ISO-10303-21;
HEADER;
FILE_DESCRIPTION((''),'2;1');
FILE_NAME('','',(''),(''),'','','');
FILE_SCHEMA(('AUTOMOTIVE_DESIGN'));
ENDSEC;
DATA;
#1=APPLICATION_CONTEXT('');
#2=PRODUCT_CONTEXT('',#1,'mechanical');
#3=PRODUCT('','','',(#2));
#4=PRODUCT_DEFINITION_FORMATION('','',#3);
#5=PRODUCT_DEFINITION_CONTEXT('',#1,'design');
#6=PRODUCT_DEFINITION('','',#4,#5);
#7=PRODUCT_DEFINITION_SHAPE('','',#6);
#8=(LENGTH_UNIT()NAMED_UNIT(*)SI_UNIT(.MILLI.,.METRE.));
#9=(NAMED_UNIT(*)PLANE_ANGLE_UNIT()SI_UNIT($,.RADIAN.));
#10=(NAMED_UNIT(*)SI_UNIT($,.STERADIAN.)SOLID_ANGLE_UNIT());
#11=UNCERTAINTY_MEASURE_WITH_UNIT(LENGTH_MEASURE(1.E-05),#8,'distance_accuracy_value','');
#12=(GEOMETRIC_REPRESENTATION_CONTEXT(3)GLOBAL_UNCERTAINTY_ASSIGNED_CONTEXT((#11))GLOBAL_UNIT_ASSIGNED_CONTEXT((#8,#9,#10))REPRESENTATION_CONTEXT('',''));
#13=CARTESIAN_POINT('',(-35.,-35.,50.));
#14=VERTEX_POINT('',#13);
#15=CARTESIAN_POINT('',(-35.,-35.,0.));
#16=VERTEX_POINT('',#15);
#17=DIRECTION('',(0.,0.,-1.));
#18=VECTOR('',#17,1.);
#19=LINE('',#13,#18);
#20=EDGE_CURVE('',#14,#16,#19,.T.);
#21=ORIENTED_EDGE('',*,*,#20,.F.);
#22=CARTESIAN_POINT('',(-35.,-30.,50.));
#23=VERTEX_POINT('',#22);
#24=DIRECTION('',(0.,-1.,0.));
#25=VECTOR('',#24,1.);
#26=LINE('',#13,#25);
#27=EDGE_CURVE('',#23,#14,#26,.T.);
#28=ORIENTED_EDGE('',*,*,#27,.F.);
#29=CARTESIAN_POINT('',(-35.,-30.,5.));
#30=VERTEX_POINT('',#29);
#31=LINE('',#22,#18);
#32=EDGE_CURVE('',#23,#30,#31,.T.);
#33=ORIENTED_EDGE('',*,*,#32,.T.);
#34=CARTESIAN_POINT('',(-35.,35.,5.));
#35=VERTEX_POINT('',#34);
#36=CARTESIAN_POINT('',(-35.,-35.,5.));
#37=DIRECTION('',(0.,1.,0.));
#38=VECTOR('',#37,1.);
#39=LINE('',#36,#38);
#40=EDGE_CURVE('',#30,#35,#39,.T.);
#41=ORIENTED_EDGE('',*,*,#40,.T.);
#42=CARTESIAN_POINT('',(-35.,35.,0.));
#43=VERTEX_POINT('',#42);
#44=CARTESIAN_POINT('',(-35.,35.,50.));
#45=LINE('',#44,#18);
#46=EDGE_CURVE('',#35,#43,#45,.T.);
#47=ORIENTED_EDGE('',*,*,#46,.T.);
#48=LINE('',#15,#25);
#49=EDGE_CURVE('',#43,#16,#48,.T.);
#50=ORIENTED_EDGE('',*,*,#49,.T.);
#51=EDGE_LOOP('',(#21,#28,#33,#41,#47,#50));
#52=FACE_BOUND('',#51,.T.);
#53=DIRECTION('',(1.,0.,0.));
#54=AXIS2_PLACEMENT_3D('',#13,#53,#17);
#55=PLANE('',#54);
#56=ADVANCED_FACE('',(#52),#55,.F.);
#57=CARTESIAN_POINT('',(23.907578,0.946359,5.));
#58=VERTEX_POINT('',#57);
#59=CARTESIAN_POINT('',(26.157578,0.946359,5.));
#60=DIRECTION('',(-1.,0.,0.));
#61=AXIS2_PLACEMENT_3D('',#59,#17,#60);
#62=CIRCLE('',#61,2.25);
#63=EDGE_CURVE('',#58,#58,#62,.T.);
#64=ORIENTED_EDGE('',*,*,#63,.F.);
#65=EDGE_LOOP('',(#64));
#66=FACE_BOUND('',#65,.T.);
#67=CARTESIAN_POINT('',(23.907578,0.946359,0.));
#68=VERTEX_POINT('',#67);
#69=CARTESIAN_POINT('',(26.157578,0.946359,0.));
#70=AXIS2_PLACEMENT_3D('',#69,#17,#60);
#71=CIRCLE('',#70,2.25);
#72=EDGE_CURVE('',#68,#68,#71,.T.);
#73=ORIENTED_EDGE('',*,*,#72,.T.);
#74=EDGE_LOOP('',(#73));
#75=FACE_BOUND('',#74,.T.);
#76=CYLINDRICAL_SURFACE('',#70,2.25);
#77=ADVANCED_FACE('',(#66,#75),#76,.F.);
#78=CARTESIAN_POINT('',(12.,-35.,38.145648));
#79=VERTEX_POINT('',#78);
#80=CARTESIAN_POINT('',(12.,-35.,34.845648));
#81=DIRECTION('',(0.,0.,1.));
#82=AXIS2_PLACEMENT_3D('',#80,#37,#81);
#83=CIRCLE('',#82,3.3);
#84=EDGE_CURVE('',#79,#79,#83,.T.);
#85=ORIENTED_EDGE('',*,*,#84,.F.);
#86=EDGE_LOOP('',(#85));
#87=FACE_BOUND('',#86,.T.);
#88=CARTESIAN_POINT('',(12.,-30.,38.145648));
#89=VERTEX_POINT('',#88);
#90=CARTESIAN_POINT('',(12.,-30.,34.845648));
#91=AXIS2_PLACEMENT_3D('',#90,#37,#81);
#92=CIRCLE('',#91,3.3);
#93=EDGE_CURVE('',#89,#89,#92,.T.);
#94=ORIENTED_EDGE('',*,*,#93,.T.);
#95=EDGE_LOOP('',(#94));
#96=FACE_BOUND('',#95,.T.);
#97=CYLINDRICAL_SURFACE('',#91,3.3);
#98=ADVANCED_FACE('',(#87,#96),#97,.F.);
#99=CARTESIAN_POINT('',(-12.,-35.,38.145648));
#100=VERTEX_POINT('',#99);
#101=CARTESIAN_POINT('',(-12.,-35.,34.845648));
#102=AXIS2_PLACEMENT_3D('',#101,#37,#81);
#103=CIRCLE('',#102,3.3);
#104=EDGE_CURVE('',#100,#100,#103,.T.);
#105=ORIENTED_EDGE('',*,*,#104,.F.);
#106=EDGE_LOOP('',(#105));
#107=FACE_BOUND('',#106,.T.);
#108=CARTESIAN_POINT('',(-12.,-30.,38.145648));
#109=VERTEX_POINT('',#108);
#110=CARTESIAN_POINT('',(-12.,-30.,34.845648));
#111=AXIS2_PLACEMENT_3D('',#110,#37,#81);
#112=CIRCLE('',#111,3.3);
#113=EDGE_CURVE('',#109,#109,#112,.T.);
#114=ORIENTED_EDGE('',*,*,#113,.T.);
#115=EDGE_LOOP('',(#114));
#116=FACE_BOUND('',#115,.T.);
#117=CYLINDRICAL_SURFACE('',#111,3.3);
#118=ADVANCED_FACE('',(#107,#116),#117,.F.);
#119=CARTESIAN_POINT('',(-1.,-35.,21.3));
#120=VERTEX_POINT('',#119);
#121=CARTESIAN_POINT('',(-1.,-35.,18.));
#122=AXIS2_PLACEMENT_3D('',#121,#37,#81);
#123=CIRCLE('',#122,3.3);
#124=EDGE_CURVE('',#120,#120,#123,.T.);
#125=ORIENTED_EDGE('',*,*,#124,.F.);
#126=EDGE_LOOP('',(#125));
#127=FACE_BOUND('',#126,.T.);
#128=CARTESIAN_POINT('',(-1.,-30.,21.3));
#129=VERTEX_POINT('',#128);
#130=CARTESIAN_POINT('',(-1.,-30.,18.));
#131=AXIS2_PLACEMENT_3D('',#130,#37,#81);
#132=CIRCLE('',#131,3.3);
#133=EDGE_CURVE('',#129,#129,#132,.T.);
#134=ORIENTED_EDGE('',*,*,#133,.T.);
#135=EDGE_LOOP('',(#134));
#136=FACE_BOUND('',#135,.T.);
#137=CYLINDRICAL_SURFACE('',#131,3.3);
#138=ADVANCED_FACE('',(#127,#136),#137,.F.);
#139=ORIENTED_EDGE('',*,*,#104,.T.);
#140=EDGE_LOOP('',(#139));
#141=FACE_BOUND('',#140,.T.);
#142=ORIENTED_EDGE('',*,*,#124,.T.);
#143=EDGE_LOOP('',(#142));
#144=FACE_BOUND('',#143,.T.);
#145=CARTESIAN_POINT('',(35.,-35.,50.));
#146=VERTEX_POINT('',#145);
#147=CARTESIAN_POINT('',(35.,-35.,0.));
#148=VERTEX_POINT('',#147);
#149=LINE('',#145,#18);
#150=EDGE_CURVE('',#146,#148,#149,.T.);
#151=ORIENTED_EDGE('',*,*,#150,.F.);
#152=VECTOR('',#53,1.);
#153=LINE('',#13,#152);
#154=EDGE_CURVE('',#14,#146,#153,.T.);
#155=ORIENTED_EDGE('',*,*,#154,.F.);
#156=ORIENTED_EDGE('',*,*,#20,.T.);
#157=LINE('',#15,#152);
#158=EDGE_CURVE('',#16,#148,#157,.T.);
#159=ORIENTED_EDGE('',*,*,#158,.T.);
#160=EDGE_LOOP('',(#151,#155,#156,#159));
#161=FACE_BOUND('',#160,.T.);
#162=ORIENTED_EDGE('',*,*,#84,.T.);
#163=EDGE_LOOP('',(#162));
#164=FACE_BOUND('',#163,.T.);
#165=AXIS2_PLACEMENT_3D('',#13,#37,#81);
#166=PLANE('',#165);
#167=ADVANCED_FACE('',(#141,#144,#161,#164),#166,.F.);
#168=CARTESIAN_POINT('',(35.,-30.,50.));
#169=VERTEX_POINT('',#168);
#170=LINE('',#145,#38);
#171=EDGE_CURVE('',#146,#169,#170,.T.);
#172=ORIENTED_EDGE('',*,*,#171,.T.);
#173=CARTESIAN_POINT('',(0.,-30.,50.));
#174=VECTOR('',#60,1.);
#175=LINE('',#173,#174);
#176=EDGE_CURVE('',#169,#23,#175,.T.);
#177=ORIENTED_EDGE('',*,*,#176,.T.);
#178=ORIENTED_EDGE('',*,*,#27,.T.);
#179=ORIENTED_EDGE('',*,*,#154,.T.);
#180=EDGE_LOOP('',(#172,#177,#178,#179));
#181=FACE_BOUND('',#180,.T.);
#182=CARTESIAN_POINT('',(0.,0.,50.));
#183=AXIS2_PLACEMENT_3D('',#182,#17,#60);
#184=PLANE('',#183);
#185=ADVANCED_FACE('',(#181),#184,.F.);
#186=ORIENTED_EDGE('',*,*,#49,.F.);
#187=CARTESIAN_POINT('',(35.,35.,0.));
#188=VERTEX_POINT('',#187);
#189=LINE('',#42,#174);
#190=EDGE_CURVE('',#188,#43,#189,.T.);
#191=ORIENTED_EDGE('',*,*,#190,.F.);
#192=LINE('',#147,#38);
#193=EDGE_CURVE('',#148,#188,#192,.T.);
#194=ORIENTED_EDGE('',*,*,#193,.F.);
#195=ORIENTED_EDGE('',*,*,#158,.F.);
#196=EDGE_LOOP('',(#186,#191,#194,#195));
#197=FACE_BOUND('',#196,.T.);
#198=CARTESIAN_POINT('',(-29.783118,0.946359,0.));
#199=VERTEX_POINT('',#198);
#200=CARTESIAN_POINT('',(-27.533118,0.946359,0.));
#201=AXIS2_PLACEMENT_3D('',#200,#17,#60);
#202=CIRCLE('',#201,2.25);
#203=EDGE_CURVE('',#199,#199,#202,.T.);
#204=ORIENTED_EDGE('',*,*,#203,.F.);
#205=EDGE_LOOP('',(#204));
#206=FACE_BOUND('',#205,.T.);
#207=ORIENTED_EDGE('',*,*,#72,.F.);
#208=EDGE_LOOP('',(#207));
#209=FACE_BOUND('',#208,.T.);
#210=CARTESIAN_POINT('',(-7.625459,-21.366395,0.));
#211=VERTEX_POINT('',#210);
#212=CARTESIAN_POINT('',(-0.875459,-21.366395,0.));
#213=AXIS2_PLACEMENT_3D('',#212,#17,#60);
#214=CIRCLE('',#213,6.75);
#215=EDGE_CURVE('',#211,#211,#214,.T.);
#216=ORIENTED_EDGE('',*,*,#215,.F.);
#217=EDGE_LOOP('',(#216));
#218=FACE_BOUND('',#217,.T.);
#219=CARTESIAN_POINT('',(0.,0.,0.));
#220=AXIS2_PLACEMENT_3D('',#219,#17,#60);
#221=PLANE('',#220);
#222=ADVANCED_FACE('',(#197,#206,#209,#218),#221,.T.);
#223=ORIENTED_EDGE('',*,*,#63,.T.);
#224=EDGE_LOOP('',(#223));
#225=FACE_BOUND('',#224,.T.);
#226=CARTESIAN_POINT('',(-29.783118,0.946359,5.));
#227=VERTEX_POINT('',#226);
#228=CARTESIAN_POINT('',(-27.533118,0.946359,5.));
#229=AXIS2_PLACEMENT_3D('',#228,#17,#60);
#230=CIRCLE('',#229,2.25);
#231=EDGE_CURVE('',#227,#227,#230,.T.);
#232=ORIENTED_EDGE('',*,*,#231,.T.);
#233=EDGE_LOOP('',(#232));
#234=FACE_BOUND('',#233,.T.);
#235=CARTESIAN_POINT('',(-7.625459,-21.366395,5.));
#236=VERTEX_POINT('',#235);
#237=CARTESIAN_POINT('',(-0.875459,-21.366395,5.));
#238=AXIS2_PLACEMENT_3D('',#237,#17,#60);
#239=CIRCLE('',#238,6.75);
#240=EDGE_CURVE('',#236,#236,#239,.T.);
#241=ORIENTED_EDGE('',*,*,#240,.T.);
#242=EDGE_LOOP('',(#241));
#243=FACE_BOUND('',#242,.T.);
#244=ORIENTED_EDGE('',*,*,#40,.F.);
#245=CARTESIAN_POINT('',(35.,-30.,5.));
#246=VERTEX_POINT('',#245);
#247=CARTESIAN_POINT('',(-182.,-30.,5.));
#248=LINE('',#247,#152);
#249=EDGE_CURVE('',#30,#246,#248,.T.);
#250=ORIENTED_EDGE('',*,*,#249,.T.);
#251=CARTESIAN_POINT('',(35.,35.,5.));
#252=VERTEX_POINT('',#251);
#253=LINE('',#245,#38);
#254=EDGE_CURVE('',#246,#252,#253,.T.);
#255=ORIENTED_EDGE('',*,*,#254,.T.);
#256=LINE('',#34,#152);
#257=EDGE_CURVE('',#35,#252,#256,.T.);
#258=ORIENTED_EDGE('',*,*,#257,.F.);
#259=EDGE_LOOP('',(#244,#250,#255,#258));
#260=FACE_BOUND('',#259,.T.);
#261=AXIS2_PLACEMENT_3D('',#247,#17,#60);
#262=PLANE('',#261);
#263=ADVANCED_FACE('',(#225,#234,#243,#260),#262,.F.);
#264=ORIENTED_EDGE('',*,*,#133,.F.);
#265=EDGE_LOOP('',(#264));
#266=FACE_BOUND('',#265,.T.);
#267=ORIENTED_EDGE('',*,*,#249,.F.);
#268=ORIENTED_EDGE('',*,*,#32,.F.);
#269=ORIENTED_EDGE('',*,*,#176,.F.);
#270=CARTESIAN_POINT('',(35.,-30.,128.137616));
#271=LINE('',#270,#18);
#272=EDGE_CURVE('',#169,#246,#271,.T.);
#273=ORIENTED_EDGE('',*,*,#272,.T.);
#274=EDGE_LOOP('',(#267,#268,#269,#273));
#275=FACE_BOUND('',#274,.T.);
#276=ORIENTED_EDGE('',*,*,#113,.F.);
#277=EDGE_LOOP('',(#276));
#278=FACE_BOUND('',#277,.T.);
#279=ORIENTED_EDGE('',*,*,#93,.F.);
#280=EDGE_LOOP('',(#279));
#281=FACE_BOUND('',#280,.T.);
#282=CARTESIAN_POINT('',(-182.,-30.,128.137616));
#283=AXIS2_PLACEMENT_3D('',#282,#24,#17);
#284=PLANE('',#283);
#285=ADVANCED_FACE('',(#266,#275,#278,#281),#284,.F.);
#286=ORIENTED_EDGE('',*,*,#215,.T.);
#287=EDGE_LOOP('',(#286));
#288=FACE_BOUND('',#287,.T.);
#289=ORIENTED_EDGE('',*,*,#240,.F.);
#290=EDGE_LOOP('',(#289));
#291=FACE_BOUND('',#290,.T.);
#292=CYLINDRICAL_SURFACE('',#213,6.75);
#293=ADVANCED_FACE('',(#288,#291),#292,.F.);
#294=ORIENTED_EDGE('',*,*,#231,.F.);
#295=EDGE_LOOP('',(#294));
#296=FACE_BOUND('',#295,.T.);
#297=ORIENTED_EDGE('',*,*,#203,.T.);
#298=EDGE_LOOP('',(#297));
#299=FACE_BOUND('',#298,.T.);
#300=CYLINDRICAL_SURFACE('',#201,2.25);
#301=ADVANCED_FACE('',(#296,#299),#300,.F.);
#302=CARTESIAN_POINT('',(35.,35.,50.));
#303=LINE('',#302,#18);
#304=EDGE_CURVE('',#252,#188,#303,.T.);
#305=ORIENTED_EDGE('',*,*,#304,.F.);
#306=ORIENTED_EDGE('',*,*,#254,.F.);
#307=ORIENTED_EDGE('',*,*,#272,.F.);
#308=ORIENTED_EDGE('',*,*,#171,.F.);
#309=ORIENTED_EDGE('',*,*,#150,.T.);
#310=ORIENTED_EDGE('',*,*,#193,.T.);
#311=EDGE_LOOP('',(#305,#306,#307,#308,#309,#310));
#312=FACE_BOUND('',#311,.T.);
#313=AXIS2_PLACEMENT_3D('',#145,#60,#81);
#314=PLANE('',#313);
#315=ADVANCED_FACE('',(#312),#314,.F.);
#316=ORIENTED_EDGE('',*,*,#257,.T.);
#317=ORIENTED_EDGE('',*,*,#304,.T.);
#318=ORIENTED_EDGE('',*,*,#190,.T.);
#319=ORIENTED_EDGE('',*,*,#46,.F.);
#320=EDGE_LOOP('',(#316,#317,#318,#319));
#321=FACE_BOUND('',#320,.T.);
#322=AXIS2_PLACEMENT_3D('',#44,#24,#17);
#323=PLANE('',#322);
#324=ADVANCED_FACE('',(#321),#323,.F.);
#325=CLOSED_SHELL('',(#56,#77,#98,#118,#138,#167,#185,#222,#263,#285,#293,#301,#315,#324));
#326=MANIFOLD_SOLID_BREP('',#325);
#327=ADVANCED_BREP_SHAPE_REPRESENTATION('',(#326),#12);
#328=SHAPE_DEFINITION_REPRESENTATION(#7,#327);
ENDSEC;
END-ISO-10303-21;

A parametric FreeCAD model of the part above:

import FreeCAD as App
import Part
import Sketcher
Q = App.Units.Quantity


def add_polygon(sketch, points):
    """Adds a closed chain of lines whose ends are joined by coincident constraints."""
    first, n = sketch.GeometryCount, len(points)
    for a, b in zip(points, points[1:] + points[:1]):
        sketch.addGeometry(Part.LineSegment(App.Vector(*a, 0), App.Vector(*b, 0)), False)
    for i in range(n):
        sketch.addConstraint(Sketcher.Constraint("Coincident", first + i, 2, first + (i + 1) % n, 1))

doc = App.newDocument("Part")
params = doc.addObject("Spreadsheet::Sheet", "Params")
for row, (alias, value) in enumerate([
    ("sketch1_width", "70 mm"),
    ("pad1_length", "50 mm"),
    ("pocket1_length", "217 mm"),
    ("sketch3_diameter", "4.5 mm"),
    ("hole_diameter", "4.5 mm"),
    ("sketch4_diameter", "13.5 mm"),
    ("hole2_diameter", "13.5 mm"),
    ("sketch5_diameter", "6.6 mm"),
    ("hole3_diameter", "6.6 mm"),
], start=1):
    params.set(f"A{row}", alias)
    params.set(f"B{row}", "=" + value)
    params.setAlias(f"B{row}", alias)

body = doc.addObject("PartDesign::Body", "Body")

# Sketch on XY plane
sketch1 = body.newObject("Sketcher::SketchObject", "Sketch")
sketch1.AttachmentSupport = (doc.getObject("XY_Plane"), [""])
sketch1.MapMode = "FlatFace"
add_polygon(sketch1, [(-35, 35), (-35, -35), (35, -35), (35, 35)])  # lines 0-3
sketch1.addConstraint([
    Sketcher.Constraint("Vertical", 0),
    Sketcher.Constraint("Horizontal", 1),
    Sketcher.Constraint("Vertical", 2),
    Sketcher.Constraint("Horizontal", 3),
    Sketcher.Constraint("Symmetric", 0, 2, 2, 2, -1, 1),
    Sketcher.Constraint("Equal", 3, 0),
    Sketcher.Constraint("DistanceX", 1, 1, 1, 2, Q("70 mm")),
])
sketch1.setExpression("Constraints[10]", "Params.sketch1_width")
pad1 = body.newObject("PartDesign::Pad", "Pad")
pad1.Profile = sketch1
pad1.setExpression("Length", "Params.pad1_length")

# Sketch on YZ plane
sketch2 = body.newObject("Sketcher::SketchObject", "Sketch001")
sketch2.AttachmentSupport = (doc.getObject("YZ_Plane"), [""])
sketch2.MapMode = "FlatFace"
sketch2.AttachmentOffset = App.Placement(App.Vector(0, 0, 35), App.Rotation())
add_polygon(sketch2, [(57, 128), (-30, 128), (-30, 5), (57, 5)])  # lines 0-3
sketch2.addConstraint([
    Sketcher.Constraint("Horizontal", 0),
    Sketcher.Constraint("Vertical", 1),
    Sketcher.Constraint("Horizontal", 2),
    Sketcher.Constraint("Vertical", 3),
    Sketcher.Constraint("DistanceX", 0, 2, -1, 1, Q("30 mm")),
    Sketcher.Constraint("DistanceY", -1, 1, 1, 2, Q("5 mm")),
    Sketcher.Constraint("DistanceX", 0, 2, 0, 1, Q("86.864114 mm")),
    Sketcher.Constraint("DistanceY", 1, 2, 1, 1, Q("123.137616 mm")),
])
pocket1 = body.newObject("PartDesign::Pocket", "Pocket")
pocket1.Profile = sketch2
pocket1.setExpression("Length", "Params.pocket1_length")

# Sketch on XY plane
sketch3 = body.newObject("Sketcher::SketchObject", "Sketch002")
sketch3.AttachmentSupport = (doc.getObject("XY_Plane"), [""])
sketch3.MapMode = "FlatFace"
sketch3.addGeometry([
    Part.Circle(App.Vector(26.2, 0.9, 0), App.Vector(0, 0, 1), 2.2),
    Part.Circle(App.Vector(-27.5, 0.9, 0), App.Vector(0, 0, 1), 2.2),
], False)
sketch3.addConstraint([
    Sketcher.Constraint("Equal", 0, 1),
    Sketcher.Constraint("Horizontal", 0, 3, 1, 3),
    Sketcher.Constraint("Diameter", 0, Q("4.5 mm")),
    Sketcher.Constraint("DistanceY", -1, 1, 0, 3, Q("0.946359 mm")),
    Sketcher.Constraint("DistanceX", -1, 1, 0, 3, Q("26.157578 mm")),
    Sketcher.Constraint("DistanceX", 1, 3, -1, 1, Q("27.533118 mm")),
])
sketch3.setExpression("Constraints[2]", "Params.sketch3_diameter")
doc.recompute()
hole = body.newObject("PartDesign::Hole", "Hole")
hole.Profile = sketch3
hole.ThreadType = "None"
hole.setExpression("Diameter", "Params.hole_diameter")
hole.DepthType = "ThroughAll"
hole.Reversed = True

# Sketch on XY plane
sketch4 = body.newObject("Sketcher::SketchObject", "Sketch003")
sketch4.AttachmentSupport = (doc.getObject("XY_Plane"), [""])
sketch4.MapMode = "FlatFace"
sketch4.addGeometry(Part.Circle(App.Vector(-1, -21, 0), App.Vector(0, 0, 1), 7), False)
sketch4.addConstraint([
    Sketcher.Constraint("Diameter", 0, Q("13.5 mm")),
    Sketcher.Constraint("DistanceX", 0, 3, -1, 1, Q("0.875459 mm")),
    Sketcher.Constraint("DistanceY", 0, 3, -1, 1, Q("21.366395 mm")),
])
sketch4.setExpression("Constraints[0]", "Params.sketch4_diameter")
doc.recompute()
hole2 = body.newObject("PartDesign::Hole", "Hole001")
hole2.Profile = sketch4
hole2.ThreadType = "None"
hole2.setExpression("Diameter", "Params.hole2_diameter")
hole2.DepthType = "ThroughAll"
hole2.Reversed = True

# Sketch on XZ plane
sketch5 = body.newObject("Sketcher::SketchObject", "Sketch004")
sketch5.AttachmentSupport = (doc.getObject("XZ_Plane"), [""])
sketch5.MapMode = "FlatFace"
sketch5.AttachmentOffset = App.Placement(App.Vector(0, 0, 30), App.Rotation())
sketch5.addGeometry([
    Part.Circle(App.Vector(-12, 34.8, 0), App.Vector(0, 0, 1), 3.3),
    Part.Circle(App.Vector(12, 34.8, 0), App.Vector(0, 0, 1), 3.3),
    Part.Circle(App.Vector(-1, 18, 0), App.Vector(0, 0, 1), 3.3),
], False)
sketch5.addConstraint([
    Sketcher.Constraint("Equal", 0, 1),
    Sketcher.Constraint("Equal", 1, 2),
    Sketcher.Constraint("Symmetric", 0, 3, 1, 3, -2),
    Sketcher.Constraint("Diameter", 0, Q("6.6 mm")),
    Sketcher.Constraint("DistanceX", 0, 3, -1, 1, Q("12 mm")),
    Sketcher.Constraint("DistanceX", 2, 3, -1, 1, Q("1 mm")),
    Sketcher.Constraint("DistanceY", -1, 1, 2, 3, Q("18 mm")),
    Sketcher.Constraint("DistanceY", -1, 1, 0, 3, Q("34.845648 mm")),
])
sketch5.setExpression("Constraints[3]", "Params.sketch5_diameter")
doc.recompute()
hole3 = body.newObject("PartDesign::Hole", "Hole002")
hole3.Profile = sketch5
hole3.ThreadType = "None"
hole3.setExpression("Diameter", "Params.hole3_diameter")
hole3.DepthType = "ThroughAll"
hole3.Reversed = True

doc.recompute()
